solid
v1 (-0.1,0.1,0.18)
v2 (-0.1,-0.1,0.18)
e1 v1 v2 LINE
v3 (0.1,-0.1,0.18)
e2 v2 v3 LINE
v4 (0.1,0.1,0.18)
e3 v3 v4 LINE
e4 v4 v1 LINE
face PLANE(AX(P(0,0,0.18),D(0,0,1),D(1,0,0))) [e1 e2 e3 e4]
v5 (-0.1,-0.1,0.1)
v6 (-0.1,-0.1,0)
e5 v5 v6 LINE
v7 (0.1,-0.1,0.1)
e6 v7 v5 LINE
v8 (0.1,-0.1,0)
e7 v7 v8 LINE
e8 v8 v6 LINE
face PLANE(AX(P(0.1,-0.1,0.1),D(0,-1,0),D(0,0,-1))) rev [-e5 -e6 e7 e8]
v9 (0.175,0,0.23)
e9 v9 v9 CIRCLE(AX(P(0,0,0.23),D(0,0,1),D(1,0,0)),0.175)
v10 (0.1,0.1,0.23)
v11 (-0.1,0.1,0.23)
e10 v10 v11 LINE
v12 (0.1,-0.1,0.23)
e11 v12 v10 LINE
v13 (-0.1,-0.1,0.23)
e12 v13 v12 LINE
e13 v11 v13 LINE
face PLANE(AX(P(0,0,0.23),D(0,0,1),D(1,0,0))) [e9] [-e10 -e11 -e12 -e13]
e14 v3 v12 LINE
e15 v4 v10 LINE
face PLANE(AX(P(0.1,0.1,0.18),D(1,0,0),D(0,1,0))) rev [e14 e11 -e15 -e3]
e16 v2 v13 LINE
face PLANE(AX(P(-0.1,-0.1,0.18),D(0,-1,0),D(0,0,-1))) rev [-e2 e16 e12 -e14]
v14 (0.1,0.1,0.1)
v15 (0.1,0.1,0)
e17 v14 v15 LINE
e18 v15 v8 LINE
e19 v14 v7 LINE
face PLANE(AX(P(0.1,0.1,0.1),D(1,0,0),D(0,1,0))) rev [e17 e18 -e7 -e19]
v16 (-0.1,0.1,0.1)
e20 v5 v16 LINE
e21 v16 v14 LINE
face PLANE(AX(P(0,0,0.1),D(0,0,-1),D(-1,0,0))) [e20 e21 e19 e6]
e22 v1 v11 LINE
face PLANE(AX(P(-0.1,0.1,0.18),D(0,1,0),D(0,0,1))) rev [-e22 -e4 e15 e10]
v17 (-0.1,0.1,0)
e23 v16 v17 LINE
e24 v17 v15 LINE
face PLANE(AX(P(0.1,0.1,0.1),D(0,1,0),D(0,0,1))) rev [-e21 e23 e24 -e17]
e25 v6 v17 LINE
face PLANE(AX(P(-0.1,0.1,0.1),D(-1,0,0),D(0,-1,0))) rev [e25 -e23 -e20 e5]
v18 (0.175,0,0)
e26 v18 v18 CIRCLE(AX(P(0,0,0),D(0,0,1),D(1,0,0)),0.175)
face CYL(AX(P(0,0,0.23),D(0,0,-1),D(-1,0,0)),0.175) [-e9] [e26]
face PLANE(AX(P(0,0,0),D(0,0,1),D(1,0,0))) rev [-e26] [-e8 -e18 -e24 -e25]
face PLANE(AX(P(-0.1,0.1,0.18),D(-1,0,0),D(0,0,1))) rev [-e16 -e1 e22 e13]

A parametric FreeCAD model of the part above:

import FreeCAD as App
import Part
import Sketcher

V = App.Vector

doc = App.newDocument("Part")
params = doc.addObject("Spreadsheet::Sheet", "Params")
for row, (alias, value) in enumerate([
    ("sketch1_diameter", "0.35 mm"),
    ("pad1_length", "0.23 mm"),
    ("sketch2_width", "0.2 mm"),
    ("pocket1_length", "0.05 mm"),
    ("sketch3_width", "0.2 mm"),
    ("pocket2_length", "0.1 mm"),
], start=1):
    params.set(f"A{row}", alias)
    params.set(f"B{row}", "=" + value)
    params.setAlias(f"B{row}", alias)

body = doc.addObject("PartDesign::Body", "Body")

# Sketch on XY plane
sketch1 = body.newObject("Sketcher::SketchObject", "Sketch")
sketch1.AttachmentSupport = (doc.getObject("XY_Plane"), [""])
sketch1.MapMode = "FlatFace"
sketch1.addGeometry(Part.Circle(V(0, 0, 0), V(0, 0, 1), 0.17), False)
sketch1.addConstraint(Sketcher.Constraint("Coincident", 0, 3, -1, 1))
sketch1.addConstraint(Sketcher.Constraint("Diameter", 0, 0.35))
sketch1.setExpression("Constraints[1]", "Params.sketch1_diameter")
pad1 = body.newObject("PartDesign::Pad", "Pad")
pad1.Profile = sketch1
pad1.setExpression("Length", "Params.pad1_length")

# Sketch on XY plane
sketch2 = body.newObject("Sketcher::SketchObject", "Sketch001")
sketch2.AttachmentSupport = (doc.getObject("XY_Plane"), [""])
sketch2.MapMode = "FlatFace"
sketch2.AttachmentOffset = App.Placement(V(0, 0, 0.23), App.Rotation())
sketch2.addGeometry(Part.LineSegment(V(-0.1, 0.1, 0), V(-0.1, -0.1, 0)), False)
sketch2.addGeometry(Part.LineSegment(V(-0.1, -0.1, 0), V(0.1, -0.1, 0)), False)
sketch2.addGeometry(Part.LineSegment(V(0.1, -0.1, 0), V(0.1, 0.1, 0)), False)
sketch2.addGeometry(Part.LineSegment(V(0.1, 0.1, 0), V(-0.1, 0.1, 0)), False)
sketch2.addConstraint(Sketcher.Constraint("Coincident", 0, 2, 1, 1))
sketch2.addConstraint(Sketcher.Constraint("Coincident", 1, 2, 2, 1))
sketch2.addConstraint(Sketcher.Constraint("Coincident", 2, 2, 3, 1))
sketch2.addConstraint(Sketcher.Constraint("Coincident", 3, 2, 0, 1))
sketch2.addConstraint(Sketcher.Constraint("Vertical", 0))
sketch2.addConstraint(Sketcher.Constraint("Horizontal", 1))
sketch2.addConstraint(Sketcher.Constraint("Vertical", 2))
sketch2.addConstraint(Sketcher.Constraint("Horizontal", 3))
sketch2.addConstraint(Sketcher.Constraint("Symmetric", 0, 2, 2, 2, -1, 1))
sketch2.addConstraint(Sketcher.Constraint("Equal", 3, 0))
sketch2.addConstraint(Sketcher.Constraint("DistanceX", 1, 1, 1, 2, 0.2))
sketch2.setExpression("Constraints[10]", "Params.sketch2_width")
pocket1 = body.newObject("PartDesign::Pocket", "Pocket")
pocket1.Profile = sketch2
pocket1.setExpression("Length", "Params.pocket1_length")

# Sketch on XY plane
sketch3 = body.newObject("Sketcher::SketchObject", "Sketch002")
sketch3.AttachmentSupport = (doc.getObject("XY_Plane"), [""])
sketch3.MapMode = "FlatFace"
sketch3.addGeometry(Part.LineSegment(V(0.1, 0.1, 0), V(0.1, -0.1, 0)), False)
sketch3.addGeometry(Part.LineSegment(V(0.1, -0.1, 0), V(-0.1, -0.1, 0)), False)
sketch3.addGeometry(Part.LineSegment(V(-0.1, -0.1, 0), V(-0.1, 0.1, 0)), False)
sketch3.addGeometry(Part.LineSegment(V(-0.1, 0.1, 0), V(0.1, 0.1, 0)), False)
sketch3.addConstraint(Sketcher.Constraint("Coincident", 0, 2, 1, 1))
sketch3.addConstraint(Sketcher.Constraint("Coincident", 1, 2, 2, 1))
sketch3.addConstraint(Sketcher.Constraint("Coincident", 2, 2, 3, 1))
sketch3.addConstraint(Sketcher.Constraint("Coincident", 3, 2, 0, 1))
sketch3.addConstraint(Sketcher.Constraint("Vertical", 0))
sketch3.addConstraint(Sketcher.Constraint("Horizontal", 1))
sketch3.addConstraint(Sketcher.Constraint("Vertical", 2))
sketch3.addConstraint(Sketcher.Constraint("Horizontal", 3))
sketch3.addConstraint(Sketcher.Constraint("Symmetric", 0, 2, 2, 2, -1, 1))
sketch3.addConstraint(Sketcher.Constraint("Equal", 3, 0))
sketch3.addConstraint(Sketcher.Constraint("DistanceX", 1, 2, 1, 1, 0.2))
sketch3.setExpression("Constraints[10]", "Params.sketch3_width")
pocket2 = body.newObject("PartDesign::Pocket", "Pocket001")
pocket2.Profile = sketch3
pocket2.setExpression("Length", "Params.pocket2_length")
pocket2.Reversed = True

doc.recompute()
